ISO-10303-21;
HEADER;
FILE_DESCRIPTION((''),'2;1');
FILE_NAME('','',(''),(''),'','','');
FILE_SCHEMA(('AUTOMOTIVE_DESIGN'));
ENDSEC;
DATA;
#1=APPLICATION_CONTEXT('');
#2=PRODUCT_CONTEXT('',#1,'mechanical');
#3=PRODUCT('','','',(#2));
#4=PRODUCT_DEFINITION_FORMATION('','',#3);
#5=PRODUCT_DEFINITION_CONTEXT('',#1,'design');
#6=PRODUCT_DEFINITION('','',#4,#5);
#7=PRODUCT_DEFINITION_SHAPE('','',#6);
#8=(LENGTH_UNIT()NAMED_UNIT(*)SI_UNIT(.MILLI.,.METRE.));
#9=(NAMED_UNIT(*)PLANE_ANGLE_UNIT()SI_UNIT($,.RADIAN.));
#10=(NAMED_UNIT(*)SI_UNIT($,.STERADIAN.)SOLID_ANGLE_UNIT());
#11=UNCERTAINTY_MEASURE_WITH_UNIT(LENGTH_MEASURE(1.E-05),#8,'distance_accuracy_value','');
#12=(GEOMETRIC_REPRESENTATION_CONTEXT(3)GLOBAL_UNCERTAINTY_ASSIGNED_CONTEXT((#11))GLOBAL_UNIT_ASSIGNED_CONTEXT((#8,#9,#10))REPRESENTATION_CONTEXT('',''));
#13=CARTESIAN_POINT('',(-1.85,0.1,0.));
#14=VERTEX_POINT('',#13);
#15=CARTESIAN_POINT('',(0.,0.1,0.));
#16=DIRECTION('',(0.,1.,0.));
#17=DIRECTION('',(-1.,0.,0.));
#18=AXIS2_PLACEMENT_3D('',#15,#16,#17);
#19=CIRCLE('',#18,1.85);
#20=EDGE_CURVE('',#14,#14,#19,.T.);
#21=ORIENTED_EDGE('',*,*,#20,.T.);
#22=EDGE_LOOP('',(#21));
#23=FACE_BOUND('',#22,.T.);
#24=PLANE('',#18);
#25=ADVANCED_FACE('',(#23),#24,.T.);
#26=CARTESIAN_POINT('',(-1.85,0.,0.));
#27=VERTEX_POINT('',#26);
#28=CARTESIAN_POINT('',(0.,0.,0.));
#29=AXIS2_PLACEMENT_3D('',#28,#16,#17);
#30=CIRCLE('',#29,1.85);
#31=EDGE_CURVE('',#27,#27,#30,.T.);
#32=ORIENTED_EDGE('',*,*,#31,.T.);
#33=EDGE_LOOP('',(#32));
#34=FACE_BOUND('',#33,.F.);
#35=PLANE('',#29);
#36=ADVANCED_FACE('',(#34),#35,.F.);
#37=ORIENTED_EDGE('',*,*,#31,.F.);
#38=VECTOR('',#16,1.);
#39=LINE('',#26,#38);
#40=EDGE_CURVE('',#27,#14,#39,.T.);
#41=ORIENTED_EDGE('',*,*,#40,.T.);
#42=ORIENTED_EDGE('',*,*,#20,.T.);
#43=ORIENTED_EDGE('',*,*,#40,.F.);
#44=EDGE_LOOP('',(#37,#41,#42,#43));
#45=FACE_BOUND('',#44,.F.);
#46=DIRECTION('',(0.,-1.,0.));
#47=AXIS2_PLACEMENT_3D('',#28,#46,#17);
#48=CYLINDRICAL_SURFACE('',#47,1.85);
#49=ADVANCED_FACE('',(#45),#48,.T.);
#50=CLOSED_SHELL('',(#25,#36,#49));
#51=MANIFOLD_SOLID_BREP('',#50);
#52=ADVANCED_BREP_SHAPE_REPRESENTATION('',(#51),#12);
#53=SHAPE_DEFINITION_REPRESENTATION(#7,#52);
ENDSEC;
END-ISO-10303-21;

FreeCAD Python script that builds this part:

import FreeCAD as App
import Part
import Sketcher

doc = App.newDocument("Part")
body = doc.addObject("PartDesign::Body", "Body")

# Sketch on XZ plane
sketch1 = doc.addObject("Sketcher::SketchObject", "Sketch")
body.addObject(sketch1)
sketch1.AttachmentSupport = (doc.XZ_Plane, [""])
sketch1.MapMode = "FlatFace"
sketch1.addGeometry(Part.Circle(App.Vector(0, 0, 0), App.Vector(0, 0, 1), 1.9), False)
sketch1.addConstraint(Sketcher.Constraint("Coincident", 0, 3, -1, 1))
sketch1.addConstraint(Sketcher.Constraint("Diameter", 0, 3.7))
pad1 = doc.addObject("PartDesign::Pad", "Pad")
body.addObject(pad1)
pad1.Profile = sketch1
pad1.Length = 0.1
pad1.Reversed = True

doc.recompute()
